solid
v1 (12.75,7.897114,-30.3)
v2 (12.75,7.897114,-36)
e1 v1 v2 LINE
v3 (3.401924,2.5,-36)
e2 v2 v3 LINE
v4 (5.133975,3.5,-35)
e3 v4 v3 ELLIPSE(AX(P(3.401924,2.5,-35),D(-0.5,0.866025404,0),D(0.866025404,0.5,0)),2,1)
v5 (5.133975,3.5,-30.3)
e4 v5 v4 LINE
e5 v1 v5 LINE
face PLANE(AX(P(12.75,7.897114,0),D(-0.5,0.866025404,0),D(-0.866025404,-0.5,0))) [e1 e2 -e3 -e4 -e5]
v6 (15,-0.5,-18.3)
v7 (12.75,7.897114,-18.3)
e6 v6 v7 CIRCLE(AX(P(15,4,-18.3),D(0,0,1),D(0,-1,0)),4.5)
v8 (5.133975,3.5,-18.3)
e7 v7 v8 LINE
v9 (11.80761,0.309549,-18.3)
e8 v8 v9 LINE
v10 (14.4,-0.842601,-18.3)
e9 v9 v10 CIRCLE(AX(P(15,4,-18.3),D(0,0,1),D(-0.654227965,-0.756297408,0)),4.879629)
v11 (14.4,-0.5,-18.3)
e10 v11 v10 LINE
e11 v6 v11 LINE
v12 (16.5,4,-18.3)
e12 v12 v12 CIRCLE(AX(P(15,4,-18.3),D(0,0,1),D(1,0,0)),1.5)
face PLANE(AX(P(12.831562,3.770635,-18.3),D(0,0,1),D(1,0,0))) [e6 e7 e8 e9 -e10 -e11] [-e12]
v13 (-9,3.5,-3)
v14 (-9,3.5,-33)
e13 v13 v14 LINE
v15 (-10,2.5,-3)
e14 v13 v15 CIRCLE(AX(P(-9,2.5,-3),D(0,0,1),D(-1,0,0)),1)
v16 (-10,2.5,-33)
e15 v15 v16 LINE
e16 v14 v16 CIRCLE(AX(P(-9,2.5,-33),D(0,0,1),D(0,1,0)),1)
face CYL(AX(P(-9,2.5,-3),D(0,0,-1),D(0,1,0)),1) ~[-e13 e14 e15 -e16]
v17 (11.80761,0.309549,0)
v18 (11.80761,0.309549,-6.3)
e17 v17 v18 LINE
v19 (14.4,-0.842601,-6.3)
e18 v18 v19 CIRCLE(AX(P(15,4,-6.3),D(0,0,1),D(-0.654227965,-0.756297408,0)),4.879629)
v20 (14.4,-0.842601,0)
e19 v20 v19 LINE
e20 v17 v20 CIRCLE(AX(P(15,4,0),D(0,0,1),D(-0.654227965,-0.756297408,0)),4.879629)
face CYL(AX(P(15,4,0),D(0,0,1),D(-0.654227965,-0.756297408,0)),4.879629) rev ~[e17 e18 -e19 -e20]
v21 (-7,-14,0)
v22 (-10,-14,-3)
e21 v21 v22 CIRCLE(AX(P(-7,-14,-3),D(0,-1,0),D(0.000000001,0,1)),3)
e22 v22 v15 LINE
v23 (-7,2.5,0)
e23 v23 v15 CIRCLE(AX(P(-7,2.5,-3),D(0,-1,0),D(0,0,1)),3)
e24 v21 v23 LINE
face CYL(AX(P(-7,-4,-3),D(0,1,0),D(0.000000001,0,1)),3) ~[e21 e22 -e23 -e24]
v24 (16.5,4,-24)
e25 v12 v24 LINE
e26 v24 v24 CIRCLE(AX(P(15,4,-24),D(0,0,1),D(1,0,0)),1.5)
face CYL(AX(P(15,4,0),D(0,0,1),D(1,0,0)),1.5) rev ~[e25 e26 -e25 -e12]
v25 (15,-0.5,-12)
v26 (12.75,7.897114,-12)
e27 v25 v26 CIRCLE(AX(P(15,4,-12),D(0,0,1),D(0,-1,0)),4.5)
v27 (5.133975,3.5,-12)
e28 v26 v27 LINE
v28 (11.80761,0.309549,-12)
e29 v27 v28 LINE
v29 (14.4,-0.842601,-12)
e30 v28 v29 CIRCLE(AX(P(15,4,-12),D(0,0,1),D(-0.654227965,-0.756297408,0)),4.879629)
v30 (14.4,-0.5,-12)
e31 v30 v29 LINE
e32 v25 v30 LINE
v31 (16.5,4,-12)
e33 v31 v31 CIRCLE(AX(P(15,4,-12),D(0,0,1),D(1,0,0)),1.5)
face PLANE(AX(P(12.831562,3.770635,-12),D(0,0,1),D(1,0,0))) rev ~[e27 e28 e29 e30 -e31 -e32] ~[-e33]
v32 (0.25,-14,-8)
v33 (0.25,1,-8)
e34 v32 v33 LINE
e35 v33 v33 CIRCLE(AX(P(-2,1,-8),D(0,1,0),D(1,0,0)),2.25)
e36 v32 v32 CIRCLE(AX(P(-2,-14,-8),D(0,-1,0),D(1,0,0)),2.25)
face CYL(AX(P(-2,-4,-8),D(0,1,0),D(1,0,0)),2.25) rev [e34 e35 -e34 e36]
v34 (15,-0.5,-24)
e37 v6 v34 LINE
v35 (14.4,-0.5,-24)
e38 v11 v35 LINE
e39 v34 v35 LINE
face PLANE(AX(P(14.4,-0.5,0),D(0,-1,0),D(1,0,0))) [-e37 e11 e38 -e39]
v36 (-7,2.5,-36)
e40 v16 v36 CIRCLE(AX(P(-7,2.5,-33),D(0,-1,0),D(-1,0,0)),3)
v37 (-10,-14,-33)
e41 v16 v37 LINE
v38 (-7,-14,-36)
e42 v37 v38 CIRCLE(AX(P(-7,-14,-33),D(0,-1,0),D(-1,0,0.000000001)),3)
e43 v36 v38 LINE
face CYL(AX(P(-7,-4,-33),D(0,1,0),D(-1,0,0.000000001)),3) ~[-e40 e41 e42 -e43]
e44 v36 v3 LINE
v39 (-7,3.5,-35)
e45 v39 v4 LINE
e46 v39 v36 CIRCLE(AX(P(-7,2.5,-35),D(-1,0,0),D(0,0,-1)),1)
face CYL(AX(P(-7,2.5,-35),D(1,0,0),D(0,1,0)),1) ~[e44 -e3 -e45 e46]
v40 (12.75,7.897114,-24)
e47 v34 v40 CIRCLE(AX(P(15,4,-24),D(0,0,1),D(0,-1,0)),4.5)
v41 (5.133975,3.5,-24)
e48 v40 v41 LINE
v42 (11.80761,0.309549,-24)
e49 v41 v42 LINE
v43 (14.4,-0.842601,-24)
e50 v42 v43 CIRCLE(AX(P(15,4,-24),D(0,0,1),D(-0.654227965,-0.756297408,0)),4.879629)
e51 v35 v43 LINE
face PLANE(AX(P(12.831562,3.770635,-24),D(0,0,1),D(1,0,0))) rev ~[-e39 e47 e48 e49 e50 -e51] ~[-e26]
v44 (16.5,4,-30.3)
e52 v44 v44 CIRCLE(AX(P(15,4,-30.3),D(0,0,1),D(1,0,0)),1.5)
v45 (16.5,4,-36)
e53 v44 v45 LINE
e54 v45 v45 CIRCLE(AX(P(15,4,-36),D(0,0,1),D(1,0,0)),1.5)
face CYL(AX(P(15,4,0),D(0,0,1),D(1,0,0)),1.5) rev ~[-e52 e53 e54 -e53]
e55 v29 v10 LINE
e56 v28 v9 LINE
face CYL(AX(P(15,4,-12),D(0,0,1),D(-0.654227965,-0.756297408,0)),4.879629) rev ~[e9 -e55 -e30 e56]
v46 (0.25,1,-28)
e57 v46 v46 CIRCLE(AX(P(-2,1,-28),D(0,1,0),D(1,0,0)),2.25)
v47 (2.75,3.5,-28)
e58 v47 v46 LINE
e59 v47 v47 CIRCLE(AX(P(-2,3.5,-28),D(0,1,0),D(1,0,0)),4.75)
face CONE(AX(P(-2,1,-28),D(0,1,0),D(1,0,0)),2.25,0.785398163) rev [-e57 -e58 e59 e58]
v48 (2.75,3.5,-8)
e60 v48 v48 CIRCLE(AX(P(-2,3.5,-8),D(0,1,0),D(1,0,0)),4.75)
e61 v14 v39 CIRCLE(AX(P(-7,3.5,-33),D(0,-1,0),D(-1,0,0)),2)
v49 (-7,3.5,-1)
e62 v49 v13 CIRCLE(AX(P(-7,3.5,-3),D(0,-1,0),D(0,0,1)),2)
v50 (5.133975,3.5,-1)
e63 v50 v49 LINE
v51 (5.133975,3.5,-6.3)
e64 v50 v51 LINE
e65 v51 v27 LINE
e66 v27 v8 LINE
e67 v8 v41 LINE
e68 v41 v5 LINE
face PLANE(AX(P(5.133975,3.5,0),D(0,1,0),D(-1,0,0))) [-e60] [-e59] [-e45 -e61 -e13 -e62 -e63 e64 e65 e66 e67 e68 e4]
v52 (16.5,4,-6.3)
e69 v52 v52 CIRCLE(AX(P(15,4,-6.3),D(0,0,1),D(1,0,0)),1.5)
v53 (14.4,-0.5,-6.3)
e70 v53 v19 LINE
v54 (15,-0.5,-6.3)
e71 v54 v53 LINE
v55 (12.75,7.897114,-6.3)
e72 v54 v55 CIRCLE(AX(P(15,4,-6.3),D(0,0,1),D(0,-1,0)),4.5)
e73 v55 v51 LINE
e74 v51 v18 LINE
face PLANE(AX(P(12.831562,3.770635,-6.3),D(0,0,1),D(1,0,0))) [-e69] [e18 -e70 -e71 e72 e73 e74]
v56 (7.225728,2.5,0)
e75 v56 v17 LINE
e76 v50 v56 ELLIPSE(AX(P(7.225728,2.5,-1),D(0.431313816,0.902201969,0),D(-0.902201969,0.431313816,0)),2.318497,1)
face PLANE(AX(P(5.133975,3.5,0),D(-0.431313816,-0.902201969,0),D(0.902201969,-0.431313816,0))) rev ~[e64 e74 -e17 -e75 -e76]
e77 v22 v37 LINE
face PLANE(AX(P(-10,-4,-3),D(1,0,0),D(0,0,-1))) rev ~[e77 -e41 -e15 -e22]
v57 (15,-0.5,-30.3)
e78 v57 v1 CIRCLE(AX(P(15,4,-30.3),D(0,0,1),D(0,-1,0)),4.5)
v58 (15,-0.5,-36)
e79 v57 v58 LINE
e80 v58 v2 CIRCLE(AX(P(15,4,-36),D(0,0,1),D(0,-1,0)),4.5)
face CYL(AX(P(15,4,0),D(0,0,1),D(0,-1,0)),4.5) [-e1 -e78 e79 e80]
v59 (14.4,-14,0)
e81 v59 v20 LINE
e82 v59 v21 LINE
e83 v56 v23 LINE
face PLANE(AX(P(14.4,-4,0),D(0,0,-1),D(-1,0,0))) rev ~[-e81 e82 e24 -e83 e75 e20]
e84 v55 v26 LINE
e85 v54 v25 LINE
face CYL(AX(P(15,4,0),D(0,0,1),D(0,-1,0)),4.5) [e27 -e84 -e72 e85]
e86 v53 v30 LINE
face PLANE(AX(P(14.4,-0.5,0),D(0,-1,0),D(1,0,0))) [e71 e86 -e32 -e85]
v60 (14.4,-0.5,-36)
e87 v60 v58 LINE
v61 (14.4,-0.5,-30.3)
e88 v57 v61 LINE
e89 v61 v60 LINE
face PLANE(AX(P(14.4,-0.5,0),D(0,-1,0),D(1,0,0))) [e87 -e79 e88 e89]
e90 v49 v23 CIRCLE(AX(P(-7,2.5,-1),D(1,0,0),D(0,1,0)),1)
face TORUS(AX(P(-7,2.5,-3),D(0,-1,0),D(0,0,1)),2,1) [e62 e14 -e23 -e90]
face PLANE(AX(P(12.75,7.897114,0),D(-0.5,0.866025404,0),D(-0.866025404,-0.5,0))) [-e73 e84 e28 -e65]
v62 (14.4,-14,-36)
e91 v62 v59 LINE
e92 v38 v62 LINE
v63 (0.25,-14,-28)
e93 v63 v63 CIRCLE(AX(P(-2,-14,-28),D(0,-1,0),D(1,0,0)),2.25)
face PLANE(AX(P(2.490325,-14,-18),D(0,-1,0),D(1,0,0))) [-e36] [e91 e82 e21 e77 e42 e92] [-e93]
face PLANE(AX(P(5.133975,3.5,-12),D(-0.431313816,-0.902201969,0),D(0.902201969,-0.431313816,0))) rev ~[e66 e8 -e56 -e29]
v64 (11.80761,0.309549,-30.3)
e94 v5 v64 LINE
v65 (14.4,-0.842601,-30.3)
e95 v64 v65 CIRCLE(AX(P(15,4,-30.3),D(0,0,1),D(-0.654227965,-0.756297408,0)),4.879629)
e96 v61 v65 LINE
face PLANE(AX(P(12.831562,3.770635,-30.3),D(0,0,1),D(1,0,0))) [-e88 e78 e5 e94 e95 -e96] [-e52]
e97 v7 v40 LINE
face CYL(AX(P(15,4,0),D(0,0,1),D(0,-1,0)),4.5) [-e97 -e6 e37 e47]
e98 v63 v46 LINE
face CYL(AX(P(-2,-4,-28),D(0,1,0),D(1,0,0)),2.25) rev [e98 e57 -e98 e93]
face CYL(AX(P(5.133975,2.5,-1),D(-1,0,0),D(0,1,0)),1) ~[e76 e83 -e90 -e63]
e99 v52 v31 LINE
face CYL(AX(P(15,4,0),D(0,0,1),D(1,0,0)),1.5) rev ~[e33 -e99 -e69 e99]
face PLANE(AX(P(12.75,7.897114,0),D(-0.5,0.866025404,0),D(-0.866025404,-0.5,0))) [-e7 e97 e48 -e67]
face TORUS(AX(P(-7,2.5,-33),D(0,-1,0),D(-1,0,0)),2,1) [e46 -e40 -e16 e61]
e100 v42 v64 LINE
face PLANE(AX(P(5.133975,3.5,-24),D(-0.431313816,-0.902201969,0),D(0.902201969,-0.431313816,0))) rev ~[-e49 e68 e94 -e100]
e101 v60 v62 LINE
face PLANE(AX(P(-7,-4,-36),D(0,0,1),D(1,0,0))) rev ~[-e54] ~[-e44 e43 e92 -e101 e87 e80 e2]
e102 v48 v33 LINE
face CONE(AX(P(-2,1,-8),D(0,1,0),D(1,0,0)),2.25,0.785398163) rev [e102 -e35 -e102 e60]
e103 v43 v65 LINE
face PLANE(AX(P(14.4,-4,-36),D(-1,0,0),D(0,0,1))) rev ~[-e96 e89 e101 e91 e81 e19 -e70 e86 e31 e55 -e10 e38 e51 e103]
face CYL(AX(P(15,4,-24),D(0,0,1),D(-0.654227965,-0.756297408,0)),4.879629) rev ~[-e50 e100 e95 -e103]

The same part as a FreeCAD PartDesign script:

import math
import FreeCAD as App
import Part
import Sketcher
from FreeCAD import Vector
Q = App.Units.Quantity


def edges_at(feature, points):
    """Names of the edges that pass closest to the given points."""
    edges = feature.Shape.Edges
    near = lambda p: min(range(len(edges)), key=lambda i: edges[i].distToShape(Part.Vertex(*p))[0])
    return sorted({f"Edge{near(p) + 1}" for p in points})

doc = App.newDocument("Part")
body = doc.addObject("PartDesign::Body", "Body")

# Sketch on XY plane
sketch1 = body.newObject("Sketcher::SketchObject", "Sketch")
sketch1.AttachmentSupport = (doc.getObject("XY_Plane"), [""])
sketch1.MapMode = "FlatFace"
sketch1.addGeometry([
    Part.LineSegment(Vector(12.75, 7.897114, 0), Vector(5.133975, 3.5, 0)),  # 0
    Part.LineSegment(Vector(5.133975, 3.5, 0), Vector(-10, 3.5, 0)),  # 1
    Part.LineSegment(Vector(-10, 3.5, 0), Vector(-10, -4, 0)),  # 2
    Part.LineSegment(Vector(-10, -4, 0), Vector(14.4, -4, 0)),  # 3
    Part.LineSegment(Vector(14.4, -4, 0), Vector(14.4, -0.5, 0)),  # 4
    Part.LineSegment(Vector(14.4, -0.5, 0), Vector(15, -0.5, 0)),  # 5
    Part.ArcOfCircle(Part.Circle(Vector(15, 4, 0), Vector(0, 0, 1), 4.5), math.radians(-90), math.radians(120)),  # 6
    Part.Circle(Vector(15, 4, 0), Vector(0, 0, 1), 1.5),  # 7
], False)
sketch1.addConstraint([
    Sketcher.Constraint("Coincident", 0, 2, 1, 1),
    Sketcher.Constraint("Coincident", 1, 2, 2, 1),
    Sketcher.Constraint("Coincident", 2, 2, 3, 1),
    Sketcher.Constraint("Coincident", 3, 2, 4, 1),
    Sketcher.Constraint("Coincident", 4, 2, 5, 1),
    Sketcher.Constraint("Tangent", 5, 2, 6, 1),
    Sketcher.Constraint("Tangent", 6, 2, 0, 1),
    Sketcher.Constraint("Horizontal", 1),
    Sketcher.Constraint("Vertical", 2),
    Sketcher.Constraint("Horizontal", 3),
    Sketcher.Constraint("Vertical", 4),
    Sketcher.Constraint("Horizontal", 5),
    Sketcher.Constraint("Coincident", 7, 3, 6, 3),
    Sketcher.Constraint("Diameter", 7, Q("3 mm")),
    Sketcher.Constraint("Radius", 6, Q("4.5 mm")),
    Sketcher.Constraint("Angle", 0, Q("-150 deg")),
    Sketcher.Constraint("DistanceX", 3, 1, 3, 2, Q("24.4 mm")),
    Sketcher.Constraint("DistanceX", 5, 1, 5, 2, Q("0.6 mm")),
    Sketcher.Constraint("DistanceY", 2, 2, 2, 1, Q("7.5 mm")),
    Sketcher.Constraint("DistanceY", 4, 1, 4, 2, Q("3.5 mm")),
    Sketcher.Constraint("DistanceX", -1, 1, 6, 3, Q("15 mm")),
    Sketcher.Constraint("DistanceY", -1, 1, 6, 3, Q("4 mm")),
])
pad1 = body.newObject("PartDesign::Pad", "Pad")
pad1.Profile = sketch1
pad1.Length = 36
pad1.Reversed = True

# Sketch on XY plane
sketch2 = body.newObject("Sketcher::SketchObject", "Sketch001")
sketch2.AttachmentSupport = (doc.getObject("XY_Plane"), [""])
sketch2.MapMode = "FlatFace"
sketch2.addGeometry([
    Part.LineSegment(Vector(14.4, -0.842601, 0), Vector(15, -0.5, 0)),  # 0
    Part.ArcOfCircle(Part.Circle(Vector(15, 4, 0), Vector(0, 0, 1), 4.5), math.radians(-90), math.radians(120)),  # 1
    Part.LineSegment(Vector(12.75, 7.897114, 0), Vector(5.133975, 3.5, 0)),  # 2
    Part.LineSegment(Vector(5.133975, 3.5, 0), Vector(11.80761, 0.309549, 0)),  # 3
    Part.ArcOfCircle(Part.Circle(Vector(15, 4, 0), Vector(0, 0, 1), 4.879629), math.radians(-130.861136), math.radians(-97.062973)),  # 4
], False)
sketch2.addConstraint([
    Sketcher.Constraint("Coincident", 0, 2, 1, 1),
    Sketcher.Constraint("Tangent", 1, 2, 2, 1),
    Sketcher.Constraint("Coincident", 2, 2, 3, 1),
    Sketcher.Constraint("Coincident", 3, 2, 4, 1),
    Sketcher.Constraint("Coincident", 4, 2, 0, 1),
    Sketcher.Constraint("Coincident", 4, 3, 1, 3),
    Sketcher.Constraint("Vertical", 4, 3, 0, 2),
    Sketcher.Constraint("Radius", 1, Q("4.5 mm")),
    Sketcher.Constraint("Angle", 2, Q("-150 deg")),
    Sketcher.Constraint("DistanceX", -1, 1, 1, 3, Q("15 mm")),
    Sketcher.Constraint("DistanceY", -1, 1, 1, 3, Q("4 mm")),
    Sketcher.Constraint("DistanceY", 0, 2, 2, 2, Q("4 mm")),
    Sketcher.Constraint("DistanceX", -1, 1, 4, 2, Q("14.4 mm")),
    Sketcher.Constraint("Radius", 4, Q("4.879629 mm")),
    Sketcher.Constraint("DistanceX", -1, 1, 3, 2, Q("11.80761 mm")),
])
pocket1 = body.newObject("PartDesign::Pocket", "Pocket")
pocket1.Profile = sketch2
pocket1.Length = 6.3
doc.recompute()

linearpattern = body.newObject("PartDesign::LinearPattern", "LinearPattern")
linearpattern.Originals = [pocket1]
linearpattern.Direction = (doc.getObject("Z_Axis"), [""])
linearpattern.Mode = "offset"
linearpattern.Offset = 12
linearpattern.Occurrences = 3
linearpattern.Reversed = True
body.Tip = linearpattern

# Sketch on XZ plane
sketch3 = body.newObject("Sketcher::SketchObject", "Sketch002")
sketch3.AttachmentSupport = (doc.getObject("XZ_Plane"), [""])
sketch3.MapMode = "FlatFace"
sketch3.AttachmentOffset = App.Placement(Vector(0, 0, -3.5), App.Rotation())
sketch3.addGeometry([
    Part.Circle(Vector(-2, -28, 0), Vector(0, 0, 1), 2.25),
    Part.Circle(Vector(-2, -8, 0), Vector(0, 0, 1), 2.25),
], False)
sketch3.addConstraint([
    Sketcher.Constraint("Equal", 0, 1),
    Sketcher.Constraint("Vertical", 0, 3, 1, 3),
    Sketcher.Constraint("Diameter", 0, Q("4.5 mm")),
    Sketcher.Constraint("DistanceX", 0, 3, -1, 1, Q("2 mm")),
    Sketcher.Constraint("DistanceY", 0, 3, -1, 1, Q("28 mm")),
    Sketcher.Constraint("DistanceY", 1, 3, -1, 1, Q("8 mm")),
])
pocket2 = body.newObject("PartDesign::Pocket", "Pocket001")
pocket2.Profile = sketch3
pocket2.Type = "ThroughAll"
pocket2.Reversed = True
doc.recompute()

chamfer = body.newObject("PartDesign::Chamfer", "Chamfer")
chamfer.Base = (pocket2, edges_at(pocket2, [(-4.25, 3.5, -28), (-4.25, 3.5, -8)]))
chamfer.Size = 2.5
doc.recompute()

fillet = body.newObject("PartDesign::Fillet", "Fillet")
fillet.Base = (chamfer, edges_at(chamfer, [(-10, -0.25, -36), (-10, -0.25, 0)]))
fillet.Radius = 3
doc.recompute()

fillet2 = body.newObject("PartDesign::Fillet", "Fillet001")
fillet2.Base = (fillet, edges_at(fillet, [
    (-10, 3.5, -18),
    (-9.121, 3.5, -0.879),
    (-9.121, 3.5, -35.121),
    (-0.933, 3.5, -36),
    (-0.933, 3.5, 0),
]))
fillet2.Radius = 1

# Sketch on XZ plane
sketch4 = body.newObject("Sketcher::SketchObject", "Sketch003")
sketch4.AttachmentSupport = (doc.getObject("XZ_Plane"), [""])
sketch4.MapMode = "FlatFace"
sketch4.AttachmentOffset = App.Placement(Vector(0, 0, 4), App.Rotation())
sketch4.addGeometry([
    Part.LineSegment(Vector(-10, -3, 0), Vector(-10, -33, 0)),  # 0
    Part.ArcOfCircle(Part.Circle(Vector(-7, -33, 0), Vector(0, 0, 1), 3), math.radians(180), math.radians(270)),  # 1
    Part.LineSegment(Vector(-7, -36, 0), Vector(14.4, -36, 0)),  # 2
    Part.LineSegment(Vector(14.4, -36, 0), Vector(14.4, 0, 0)),  # 3
    Part.LineSegment(Vector(14.4, 0, 0), Vector(-7, 0, 0)),  # 4
    Part.ArcOfCircle(Part.Circle(Vector(-7, -3, 0), Vector(0, 0, 1), 3), math.radians(90), math.radians(180)),  # 5
    Part.Circle(Vector(-2, -28, 0), Vector(0, 0, 1), 2.25),  # 6
    Part.Circle(Vector(-2, -8, 0), Vector(0, 0, 1), 2.25),  # 7
], False)
sketch4.addConstraint([
    Sketcher.Constraint("Tangent", 0, 2, 1, 1),
    Sketcher.Constraint("Tangent", 1, 2, 2, 1),
    Sketcher.Constraint("Coincident", 2, 2, 3, 1),
    Sketcher.Constraint("Coincident", 3, 2, 4, 1),
    Sketcher.Constraint("Tangent", 4, 2, 5, 1),
    Sketcher.Constraint("Tangent", 5, 2, 0, 1),
    Sketcher.Constraint("Vertical", 0),
    Sketcher.Constraint("Horizontal", 2),
    Sketcher.Constraint("Vertical", 3),
    Sketcher.Constraint("Horizontal", 4),
    Sketcher.Constraint("Equal", 1, 5),
    Sketcher.Constraint("Equal", 6, 7),
    Sketcher.Constraint("PointOnObject", 3, 2, -1),
    Sketcher.Constraint("Vertical", 6, 3, 7, 3),
    Sketcher.Constraint("Radius", 1, Q("3 mm")),
    Sketcher.Constraint("Diameter", 6, Q("4.5 mm")),
    Sketcher.Constraint("DistanceY", 0, 2, 0, 1, Q("30 mm")),
    Sketcher.Constraint("DistanceX", 2, 1, 2, 2, Q("21.4 mm")),
    Sketcher.Constraint("DistanceX", 1, 3, -1, 1, Q("7 mm")),
    Sketcher.Constraint("DistanceX", 6, 3, -1, 1, Q("2 mm")),
    Sketcher.Constraint("DistanceY", 6, 3, -1, 1, Q("28 mm")),
    Sketcher.Constraint("DistanceY", 7, 3, -1, 1, Q("8 mm")),
])
pad2 = body.newObject("PartDesign::Pad", "Pad001")
pad2.Profile = sketch4
pad2.Length = 10

doc.recompute()
